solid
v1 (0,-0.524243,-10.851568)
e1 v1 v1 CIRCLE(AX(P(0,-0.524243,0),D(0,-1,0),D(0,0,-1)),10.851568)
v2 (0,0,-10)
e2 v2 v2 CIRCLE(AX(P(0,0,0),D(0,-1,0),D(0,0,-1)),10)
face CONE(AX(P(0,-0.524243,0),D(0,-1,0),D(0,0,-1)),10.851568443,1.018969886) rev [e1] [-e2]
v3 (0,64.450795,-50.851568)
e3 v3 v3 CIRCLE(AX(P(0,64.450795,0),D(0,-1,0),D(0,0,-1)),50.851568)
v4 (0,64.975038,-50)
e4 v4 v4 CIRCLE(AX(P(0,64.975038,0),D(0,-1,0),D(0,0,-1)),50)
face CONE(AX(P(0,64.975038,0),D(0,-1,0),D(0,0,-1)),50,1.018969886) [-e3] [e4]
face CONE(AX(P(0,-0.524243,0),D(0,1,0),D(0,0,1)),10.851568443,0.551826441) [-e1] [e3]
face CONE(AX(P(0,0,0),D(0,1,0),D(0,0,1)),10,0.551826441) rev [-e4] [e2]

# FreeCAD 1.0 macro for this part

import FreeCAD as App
import Part
import Sketcher


def add_polygon(sketch, points):
    """Adds a closed chain of lines whose ends are joined by coincident constraints."""
    first, n = sketch.GeometryCount, len(points)
    for a, b in zip(points, points[1:] + points[:1]):
        sketch.addGeometry(Part.LineSegment(App.Vector(*a, 0), App.Vector(*b, 0)), False)
    for i in range(n):
        sketch.addConstraint(Sketcher.Constraint("Coincident", first + i, 2, first + (i + 1) % n, 1))

doc = App.newDocument("Part")
body = doc.addObject("PartDesign::Body", "Body")

# Sketch on XY plane
sketch1 = body.newObject("Sketcher::SketchObject", "Sketch")
sketch1.AttachmentSupport = (doc.getObject("XY_Plane"), [""])
sketch1.MapMode = "FlatFace"
add_polygon(sketch1, [(50, 65), (10, 0), (10.9, -0.5), (50.9, 64.5)])  # lines 0-3
sketch1.addConstraint(Sketcher.Constraint("PointOnObject", 0, 2, -1))
sketch1.addConstraint(Sketcher.Constraint("Perpendicular", 0, 1))
sketch1.addConstraint(Sketcher.Constraint("Perpendicular", 1, 2))
sketch1.addConstraint(Sketcher.Constraint("Perpendicular", 2, 3))
sketch1.addConstraint(Sketcher.Constraint("Distance", 1, 1.0))
sketch1.addConstraint(Sketcher.Constraint("DistanceX", -1, 1, 0, 2, 10.0))
sketch1.addConstraint(Sketcher.Constraint("DistanceX", -1, 1, 3, 2, 50.0))
sketch1.addConstraint(Sketcher.Constraint("Distance", 0, 76.30043))
revolution = body.newObject("PartDesign::Revolution", "Revolution")
revolution.Profile = sketch1
revolution.ReferenceAxis = (sketch1, ["V_Axis"])
revolution.Angle = 360

doc.recompute()
